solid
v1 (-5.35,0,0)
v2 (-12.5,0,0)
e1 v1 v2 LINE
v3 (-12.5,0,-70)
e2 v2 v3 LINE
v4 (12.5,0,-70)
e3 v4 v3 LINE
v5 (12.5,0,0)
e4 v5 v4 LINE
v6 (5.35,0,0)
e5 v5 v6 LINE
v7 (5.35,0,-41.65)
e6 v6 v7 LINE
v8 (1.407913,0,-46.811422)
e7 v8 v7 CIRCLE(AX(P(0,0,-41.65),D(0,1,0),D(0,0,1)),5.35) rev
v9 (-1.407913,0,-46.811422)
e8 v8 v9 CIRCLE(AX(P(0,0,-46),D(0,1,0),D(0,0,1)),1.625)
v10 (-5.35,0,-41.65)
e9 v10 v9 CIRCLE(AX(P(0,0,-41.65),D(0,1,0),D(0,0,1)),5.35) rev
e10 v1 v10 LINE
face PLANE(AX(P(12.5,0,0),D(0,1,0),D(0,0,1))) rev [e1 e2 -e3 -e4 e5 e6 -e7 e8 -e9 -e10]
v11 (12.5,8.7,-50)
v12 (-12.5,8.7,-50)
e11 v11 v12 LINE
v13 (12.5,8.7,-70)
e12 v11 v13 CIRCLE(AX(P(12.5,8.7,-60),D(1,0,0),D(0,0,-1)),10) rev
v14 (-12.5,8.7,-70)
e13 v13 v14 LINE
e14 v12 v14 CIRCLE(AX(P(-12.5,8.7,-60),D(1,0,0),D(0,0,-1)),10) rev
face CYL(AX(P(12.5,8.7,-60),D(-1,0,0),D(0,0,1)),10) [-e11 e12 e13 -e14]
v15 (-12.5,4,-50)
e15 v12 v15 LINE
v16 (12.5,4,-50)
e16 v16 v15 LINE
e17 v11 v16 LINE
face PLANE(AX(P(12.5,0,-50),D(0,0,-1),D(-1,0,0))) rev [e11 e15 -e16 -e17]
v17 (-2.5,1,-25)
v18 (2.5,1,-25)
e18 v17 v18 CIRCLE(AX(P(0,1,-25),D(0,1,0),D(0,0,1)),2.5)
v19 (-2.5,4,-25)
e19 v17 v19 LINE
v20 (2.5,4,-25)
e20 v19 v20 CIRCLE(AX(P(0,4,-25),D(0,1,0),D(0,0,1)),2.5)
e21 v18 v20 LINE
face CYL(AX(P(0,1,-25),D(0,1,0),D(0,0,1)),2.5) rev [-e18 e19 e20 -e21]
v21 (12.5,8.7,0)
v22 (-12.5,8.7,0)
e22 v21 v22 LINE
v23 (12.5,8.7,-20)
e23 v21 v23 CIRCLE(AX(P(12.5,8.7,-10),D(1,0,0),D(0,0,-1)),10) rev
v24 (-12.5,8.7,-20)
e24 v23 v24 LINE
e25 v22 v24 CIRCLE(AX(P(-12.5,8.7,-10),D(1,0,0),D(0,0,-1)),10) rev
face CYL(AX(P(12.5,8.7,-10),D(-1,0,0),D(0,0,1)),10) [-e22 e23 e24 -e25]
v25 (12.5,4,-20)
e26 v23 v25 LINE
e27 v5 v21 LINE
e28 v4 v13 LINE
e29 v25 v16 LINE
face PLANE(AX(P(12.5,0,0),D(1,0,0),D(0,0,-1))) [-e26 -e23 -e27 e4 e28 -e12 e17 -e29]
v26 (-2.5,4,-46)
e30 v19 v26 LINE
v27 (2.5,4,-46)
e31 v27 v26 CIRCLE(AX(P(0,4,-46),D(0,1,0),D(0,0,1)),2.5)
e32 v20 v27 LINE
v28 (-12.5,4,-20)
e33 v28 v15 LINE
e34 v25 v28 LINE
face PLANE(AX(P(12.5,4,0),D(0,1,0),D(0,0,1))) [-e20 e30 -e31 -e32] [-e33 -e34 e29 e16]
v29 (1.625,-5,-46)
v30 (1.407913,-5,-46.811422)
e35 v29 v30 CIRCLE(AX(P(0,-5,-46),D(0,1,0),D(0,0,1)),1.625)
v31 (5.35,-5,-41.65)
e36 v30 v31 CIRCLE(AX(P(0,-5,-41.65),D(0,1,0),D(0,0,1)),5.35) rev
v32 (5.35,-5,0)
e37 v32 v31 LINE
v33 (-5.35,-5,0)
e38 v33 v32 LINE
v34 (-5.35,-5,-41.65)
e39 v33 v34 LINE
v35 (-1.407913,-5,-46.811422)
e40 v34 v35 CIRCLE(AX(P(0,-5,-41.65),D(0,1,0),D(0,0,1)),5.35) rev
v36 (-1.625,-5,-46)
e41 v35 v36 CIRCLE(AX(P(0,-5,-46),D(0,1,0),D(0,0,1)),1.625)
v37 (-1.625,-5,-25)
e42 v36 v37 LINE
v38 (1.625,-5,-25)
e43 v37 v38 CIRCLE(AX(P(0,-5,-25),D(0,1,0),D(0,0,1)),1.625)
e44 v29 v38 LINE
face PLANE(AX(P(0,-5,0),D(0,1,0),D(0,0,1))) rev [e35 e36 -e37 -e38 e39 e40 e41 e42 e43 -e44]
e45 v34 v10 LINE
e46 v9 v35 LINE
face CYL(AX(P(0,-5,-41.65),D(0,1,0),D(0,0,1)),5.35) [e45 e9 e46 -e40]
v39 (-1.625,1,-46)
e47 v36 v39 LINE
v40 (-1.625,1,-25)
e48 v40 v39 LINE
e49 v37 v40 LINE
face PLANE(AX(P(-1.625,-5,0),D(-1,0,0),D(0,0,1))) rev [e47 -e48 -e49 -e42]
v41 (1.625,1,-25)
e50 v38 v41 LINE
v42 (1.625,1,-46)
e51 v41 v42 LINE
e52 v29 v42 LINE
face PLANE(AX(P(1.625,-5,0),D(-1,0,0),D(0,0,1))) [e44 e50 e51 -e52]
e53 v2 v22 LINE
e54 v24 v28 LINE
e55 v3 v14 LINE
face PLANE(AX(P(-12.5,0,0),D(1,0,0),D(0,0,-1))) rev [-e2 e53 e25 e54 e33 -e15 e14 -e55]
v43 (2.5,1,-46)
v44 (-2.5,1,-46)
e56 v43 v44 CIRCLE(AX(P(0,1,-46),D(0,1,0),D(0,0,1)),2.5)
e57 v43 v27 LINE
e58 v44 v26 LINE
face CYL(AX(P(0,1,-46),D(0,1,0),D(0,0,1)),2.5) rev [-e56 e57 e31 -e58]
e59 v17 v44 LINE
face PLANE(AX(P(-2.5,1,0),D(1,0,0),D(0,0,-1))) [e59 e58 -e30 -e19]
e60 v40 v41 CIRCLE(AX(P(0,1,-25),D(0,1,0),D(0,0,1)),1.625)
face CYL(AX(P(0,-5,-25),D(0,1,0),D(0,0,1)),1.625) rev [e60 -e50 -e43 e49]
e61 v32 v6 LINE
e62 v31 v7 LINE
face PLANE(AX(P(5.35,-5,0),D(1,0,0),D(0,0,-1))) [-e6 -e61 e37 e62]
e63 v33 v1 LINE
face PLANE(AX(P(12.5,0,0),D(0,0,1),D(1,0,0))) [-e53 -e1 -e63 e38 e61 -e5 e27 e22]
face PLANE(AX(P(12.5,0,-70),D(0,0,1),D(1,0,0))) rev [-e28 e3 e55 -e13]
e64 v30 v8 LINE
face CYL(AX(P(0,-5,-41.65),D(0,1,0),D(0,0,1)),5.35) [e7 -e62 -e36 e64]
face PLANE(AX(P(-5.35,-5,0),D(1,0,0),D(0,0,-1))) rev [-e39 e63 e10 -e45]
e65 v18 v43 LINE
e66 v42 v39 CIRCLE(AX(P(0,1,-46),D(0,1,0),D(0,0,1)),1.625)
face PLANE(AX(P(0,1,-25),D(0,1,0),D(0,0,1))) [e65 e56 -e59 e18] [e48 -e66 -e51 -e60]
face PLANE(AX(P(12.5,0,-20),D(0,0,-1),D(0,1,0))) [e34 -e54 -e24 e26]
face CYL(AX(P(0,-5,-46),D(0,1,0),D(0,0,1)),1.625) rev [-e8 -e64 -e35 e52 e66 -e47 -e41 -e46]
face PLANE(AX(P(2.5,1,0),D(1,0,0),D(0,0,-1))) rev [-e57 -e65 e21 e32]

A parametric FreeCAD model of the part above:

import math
import FreeCAD as App
import Part
import Sketcher

doc = App.newDocument("Part")
body = doc.addObject("PartDesign::Body", "Body")

# Sketch on YZ plane
sketch1 = doc.addObject("Sketcher::SketchObject", "Sketch")
body.addObject(sketch1)
sketch1.AttachmentSupport = (doc.YZ_Plane, [""])
sketch1.MapMode = "FlatFace"
sketch1.addGeometry([
    Part.LineSegment(App.Vector(0, 0, 0), App.Vector(0, -70, 0)),  # 0
    Part.LineSegment(App.Vector(0, -70, 0), App.Vector(8.7, -70, 0)),  # 1
    Part.ArcOfCircle(Part.Circle(App.Vector(8.7, -60, 0), App.Vector(0, 0, 1), 10), math.radians(-90), math.radians(90)),  # 2
    Part.LineSegment(App.Vector(8.7, -50, 0), App.Vector(4, -50, 0)),  # 3
    Part.LineSegment(App.Vector(4, -50, 0), App.Vector(4, -20, 0)),  # 4
    Part.LineSegment(App.Vector(4, -20, 0), App.Vector(8.7, -20, 0)),  # 5
    Part.ArcOfCircle(Part.Circle(App.Vector(8.7, -10, 0), App.Vector(0, 0, 1), 10), math.radians(-90), math.radians(90)),  # 6
    Part.LineSegment(App.Vector(8.7, 0, 0), App.Vector(0, 0, 0)),  # 7
], False)
sketch1.addConstraint([
    Sketcher.Constraint("Coincident", 0, 2, 1, 1),
    Sketcher.Constraint("Tangent", 1, 2, 2, 1),
    Sketcher.Constraint("Tangent", 2, 2, 3, 1),
    Sketcher.Constraint("Coincident", 3, 2, 4, 1),
    Sketcher.Constraint("Coincident", 4, 2, 5, 1),
    Sketcher.Constraint("Tangent", 5, 2, 6, 1),
    Sketcher.Constraint("Tangent", 6, 2, 7, 1),
    Sketcher.Constraint("Coincident", 7, 2, 0, 1),
    Sketcher.Constraint("Vertical", 0),
    Sketcher.Constraint("Horizontal", 1),
    Sketcher.Constraint("Horizontal", 3),
    Sketcher.Constraint("Vertical", 4),
    Sketcher.Constraint("Horizontal", 5),
    Sketcher.Constraint("Horizontal", 7),
    Sketcher.Constraint("Coincident", 7, 2, -1, 1),
    Sketcher.Constraint("Equal", 2, 6),
    Sketcher.Constraint("Vertical", 2, 3, 6, 3),
    Sketcher.Constraint("Radius", 2, 10.0),
    Sketcher.Constraint("DistanceY", 0, 2, 0, 1, 70.0),
    Sketcher.Constraint("DistanceX", 1, 1, 1, 2, 8.7),
    Sketcher.Constraint("DistanceX", 3, 2, 3, 1, 4.7),
])
pad1 = doc.addObject("PartDesign::Pad", "Pad")
body.addObject(pad1)
pad1.Profile = sketch1
pad1.Length = 25
pad1.Midplane = True

# Sketch on XZ plane
sketch2 = doc.addObject("Sketcher::SketchObject", "Sketch001")
body.addObject(sketch2)
sketch2.AttachmentSupport = (doc.XZ_Plane, [""])
sketch2.MapMode = "FlatFace"
sketch2.addGeometry([
    Part.ArcOfCircle(Part.Circle(App.Vector(0, -42, 0), App.Vector(0, 0, 1), 5), math.radians(180), math.radians(360)),
    Part.LineSegment(App.Vector(-5, -42, 0), App.Vector(-5, 0, 0)),
    Part.LineSegment(App.Vector(-5, 0, 0), App.Vector(5, 0, 0)),
    Part.LineSegment(App.Vector(5, 0, 0), App.Vector(5, -42, 0)),
], False)
sketch2.addConstraint([
    Sketcher.Constraint("Tangent", 0, 1, 1, 1),
    Sketcher.Constraint("Coincident", 1, 2, 2, 1),
    Sketcher.Constraint("Coincident", 2, 2, 3, 1),
    Sketcher.Constraint("Tangent", 3, 2, 0, 2),
    Sketcher.Constraint("Vertical", 1),
    Sketcher.Constraint("Horizontal", 2),
    Sketcher.Constraint("Vertical", 3),
    Sketcher.Constraint("Symmetric", 1, 2, 2, 2, -1, 1),
    Sketcher.Constraint("Radius", 0, 5.35),
    Sketcher.Constraint("DistanceY", 1, 1, 1, 2, 41.65),
])
pad2 = doc.addObject("PartDesign::Pad", "Pad001")
body.addObject(pad2)
pad2.Profile = sketch2
pad2.Length = 5

# Sketch on XZ plane
sketch3 = doc.addObject("Sketcher::SketchObject", "Sketch002")
body.addObject(sketch3)
sketch3.AttachmentSupport = (doc.XZ_Plane, [""])
sketch3.MapMode = "FlatFace"
sketch3.addGeometry([
    Part.ArcOfCircle(Part.Circle(App.Vector(0, -46, 0), App.Vector(0, 0, 1), 1.6), math.radians(180), math.radians(360)),
    Part.LineSegment(App.Vector(-1.6, -46, 0), App.Vector(-1.6, -25, 0)),
    Part.ArcOfCircle(Part.Circle(App.Vector(0, -25, 0), App.Vector(0, 0, 1), 1.6), math.radians(0), math.radians(180)),
    Part.LineSegment(App.Vector(1.6, -25, 0), App.Vector(1.6, -46, 0)),
], False)
sketch3.addConstraint([
    Sketcher.Constraint("Tangent", 0, 1, 1, 1),
    Sketcher.Constraint("Tangent", 1, 2, 2, 2),
    Sketcher.Constraint("Tangent", 2, 1, 3, 1),
    Sketcher.Constraint("Tangent", 3, 2, 0, 2),
    Sketcher.Constraint("Vertical", 1),
    Sketcher.Constraint("Vertical", 3),
    Sketcher.Constraint("PointOnObject", 0, 3, -2),
    Sketcher.Constraint("DistanceY", 1, 1, 1, 2, 21.0),
    Sketcher.Constraint("DistanceY", 0, 3, -1, 1, 46.0),
    Sketcher.Constraint("Radius", 0, 1.625),
])
pocket1 = doc.addObject("PartDesign::Pocket", "Pocket")
body.addObject(pocket1)
pocket1.Profile = sketch3
pocket1.Type = "ThroughAll"
pocket1.Midplane = True

# Sketch on XZ plane
sketch4 = doc.addObject("Sketcher::SketchObject", "Sketch003")
body.addObject(sketch4)
sketch4.AttachmentSupport = (doc.XZ_Plane, [""])
sketch4.MapMode = "FlatFace"
sketch4.AttachmentOffset = App.Placement(App.Vector(0, 0, -4), App.Rotation())
sketch4.addGeometry([
    Part.LineSegment(App.Vector(-2.5, -46, 0), App.Vector(-2.5, -25, 0)),  # 0
    Part.ArcOfCircle(Part.Circle(App.Vector(0, -25, 0), App.Vector(0, 0, 1), 2.5), math.radians(0), math.radians(180)),  # 1
    Part.LineSegment(App.Vector(2.5, -25, 0), App.Vector(2.5, -46, 0)),  # 2
    Part.ArcOfCircle(Part.Circle(App.Vector(0, -46, 0), App.Vector(0, 0, 1), 2.5), math.radians(180), math.radians(360)),  # 3
    Part.LineSegment(App.Vector(-1.6, -25, 0), App.Vector(-1.6, -46, 0)),  # 4
    Part.ArcOfCircle(Part.Circle(App.Vector(0, -46, 0), App.Vector(0, 0, 1), 1.6), math.radians(180), math.radians(360)),  # 5
    Part.LineSegment(App.Vector(1.6, -46, 0), App.Vector(1.6, -25, 0)),  # 6
    Part.ArcOfCircle(Part.Circle(App.Vector(0, -25, 0), App.Vector(0, 0, 1), 1.6), math.radians(0), math.radians(180)),  # 7
], False)
sketch4.addConstraint([
    Sketcher.Constraint("Tangent", 0, 2, 1, 2),
    Sketcher.Constraint("Tangent", 1, 1, 2, 1),
    Sketcher.Constraint("Tangent", 2, 2, 3, 2),
    Sketcher.Constraint("Tangent", 3, 1, 0, 1),
    Sketcher.Constraint("Tangent", 4, 2, 5, 1),
    Sketcher.Constraint("Tangent", 5, 2, 6, 1),
    Sketcher.Constraint("Tangent", 6, 2, 7, 1),
    Sketcher.Constraint("Tangent", 7, 2, 4, 1),
    Sketcher.Constraint("Vertical", 0),
    Sketcher.Constraint("Vertical", 2),
    Sketcher.Constraint("Vertical", 4),
    Sketcher.Constraint("Vertical", 6),
    Sketcher.Constraint("Coincident", 5, 3, 3, 3),
    Sketcher.Constraint("PointOnObject", 1, 3, -2),
    Sketcher.Constraint("Horizontal", 7, 3, 0, 2),
    Sketcher.Constraint("Radius", 1, 2.5),
    Sketcher.Constraint("DistanceY", 0, 1, 0, 2, 21.0),
    Sketcher.Constraint("DistanceY", 1, 3, -1, 1, 25.0),
    Sketcher.Constraint("Radius", 5, 1.625),
])
pocket2 = doc.addObject("PartDesign::Pocket", "Pocket001")
body.addObject(pocket2)
pocket2.Profile = sketch4
pocket2.Length = 3
pocket2.Reversed = True

doc.recompute()
